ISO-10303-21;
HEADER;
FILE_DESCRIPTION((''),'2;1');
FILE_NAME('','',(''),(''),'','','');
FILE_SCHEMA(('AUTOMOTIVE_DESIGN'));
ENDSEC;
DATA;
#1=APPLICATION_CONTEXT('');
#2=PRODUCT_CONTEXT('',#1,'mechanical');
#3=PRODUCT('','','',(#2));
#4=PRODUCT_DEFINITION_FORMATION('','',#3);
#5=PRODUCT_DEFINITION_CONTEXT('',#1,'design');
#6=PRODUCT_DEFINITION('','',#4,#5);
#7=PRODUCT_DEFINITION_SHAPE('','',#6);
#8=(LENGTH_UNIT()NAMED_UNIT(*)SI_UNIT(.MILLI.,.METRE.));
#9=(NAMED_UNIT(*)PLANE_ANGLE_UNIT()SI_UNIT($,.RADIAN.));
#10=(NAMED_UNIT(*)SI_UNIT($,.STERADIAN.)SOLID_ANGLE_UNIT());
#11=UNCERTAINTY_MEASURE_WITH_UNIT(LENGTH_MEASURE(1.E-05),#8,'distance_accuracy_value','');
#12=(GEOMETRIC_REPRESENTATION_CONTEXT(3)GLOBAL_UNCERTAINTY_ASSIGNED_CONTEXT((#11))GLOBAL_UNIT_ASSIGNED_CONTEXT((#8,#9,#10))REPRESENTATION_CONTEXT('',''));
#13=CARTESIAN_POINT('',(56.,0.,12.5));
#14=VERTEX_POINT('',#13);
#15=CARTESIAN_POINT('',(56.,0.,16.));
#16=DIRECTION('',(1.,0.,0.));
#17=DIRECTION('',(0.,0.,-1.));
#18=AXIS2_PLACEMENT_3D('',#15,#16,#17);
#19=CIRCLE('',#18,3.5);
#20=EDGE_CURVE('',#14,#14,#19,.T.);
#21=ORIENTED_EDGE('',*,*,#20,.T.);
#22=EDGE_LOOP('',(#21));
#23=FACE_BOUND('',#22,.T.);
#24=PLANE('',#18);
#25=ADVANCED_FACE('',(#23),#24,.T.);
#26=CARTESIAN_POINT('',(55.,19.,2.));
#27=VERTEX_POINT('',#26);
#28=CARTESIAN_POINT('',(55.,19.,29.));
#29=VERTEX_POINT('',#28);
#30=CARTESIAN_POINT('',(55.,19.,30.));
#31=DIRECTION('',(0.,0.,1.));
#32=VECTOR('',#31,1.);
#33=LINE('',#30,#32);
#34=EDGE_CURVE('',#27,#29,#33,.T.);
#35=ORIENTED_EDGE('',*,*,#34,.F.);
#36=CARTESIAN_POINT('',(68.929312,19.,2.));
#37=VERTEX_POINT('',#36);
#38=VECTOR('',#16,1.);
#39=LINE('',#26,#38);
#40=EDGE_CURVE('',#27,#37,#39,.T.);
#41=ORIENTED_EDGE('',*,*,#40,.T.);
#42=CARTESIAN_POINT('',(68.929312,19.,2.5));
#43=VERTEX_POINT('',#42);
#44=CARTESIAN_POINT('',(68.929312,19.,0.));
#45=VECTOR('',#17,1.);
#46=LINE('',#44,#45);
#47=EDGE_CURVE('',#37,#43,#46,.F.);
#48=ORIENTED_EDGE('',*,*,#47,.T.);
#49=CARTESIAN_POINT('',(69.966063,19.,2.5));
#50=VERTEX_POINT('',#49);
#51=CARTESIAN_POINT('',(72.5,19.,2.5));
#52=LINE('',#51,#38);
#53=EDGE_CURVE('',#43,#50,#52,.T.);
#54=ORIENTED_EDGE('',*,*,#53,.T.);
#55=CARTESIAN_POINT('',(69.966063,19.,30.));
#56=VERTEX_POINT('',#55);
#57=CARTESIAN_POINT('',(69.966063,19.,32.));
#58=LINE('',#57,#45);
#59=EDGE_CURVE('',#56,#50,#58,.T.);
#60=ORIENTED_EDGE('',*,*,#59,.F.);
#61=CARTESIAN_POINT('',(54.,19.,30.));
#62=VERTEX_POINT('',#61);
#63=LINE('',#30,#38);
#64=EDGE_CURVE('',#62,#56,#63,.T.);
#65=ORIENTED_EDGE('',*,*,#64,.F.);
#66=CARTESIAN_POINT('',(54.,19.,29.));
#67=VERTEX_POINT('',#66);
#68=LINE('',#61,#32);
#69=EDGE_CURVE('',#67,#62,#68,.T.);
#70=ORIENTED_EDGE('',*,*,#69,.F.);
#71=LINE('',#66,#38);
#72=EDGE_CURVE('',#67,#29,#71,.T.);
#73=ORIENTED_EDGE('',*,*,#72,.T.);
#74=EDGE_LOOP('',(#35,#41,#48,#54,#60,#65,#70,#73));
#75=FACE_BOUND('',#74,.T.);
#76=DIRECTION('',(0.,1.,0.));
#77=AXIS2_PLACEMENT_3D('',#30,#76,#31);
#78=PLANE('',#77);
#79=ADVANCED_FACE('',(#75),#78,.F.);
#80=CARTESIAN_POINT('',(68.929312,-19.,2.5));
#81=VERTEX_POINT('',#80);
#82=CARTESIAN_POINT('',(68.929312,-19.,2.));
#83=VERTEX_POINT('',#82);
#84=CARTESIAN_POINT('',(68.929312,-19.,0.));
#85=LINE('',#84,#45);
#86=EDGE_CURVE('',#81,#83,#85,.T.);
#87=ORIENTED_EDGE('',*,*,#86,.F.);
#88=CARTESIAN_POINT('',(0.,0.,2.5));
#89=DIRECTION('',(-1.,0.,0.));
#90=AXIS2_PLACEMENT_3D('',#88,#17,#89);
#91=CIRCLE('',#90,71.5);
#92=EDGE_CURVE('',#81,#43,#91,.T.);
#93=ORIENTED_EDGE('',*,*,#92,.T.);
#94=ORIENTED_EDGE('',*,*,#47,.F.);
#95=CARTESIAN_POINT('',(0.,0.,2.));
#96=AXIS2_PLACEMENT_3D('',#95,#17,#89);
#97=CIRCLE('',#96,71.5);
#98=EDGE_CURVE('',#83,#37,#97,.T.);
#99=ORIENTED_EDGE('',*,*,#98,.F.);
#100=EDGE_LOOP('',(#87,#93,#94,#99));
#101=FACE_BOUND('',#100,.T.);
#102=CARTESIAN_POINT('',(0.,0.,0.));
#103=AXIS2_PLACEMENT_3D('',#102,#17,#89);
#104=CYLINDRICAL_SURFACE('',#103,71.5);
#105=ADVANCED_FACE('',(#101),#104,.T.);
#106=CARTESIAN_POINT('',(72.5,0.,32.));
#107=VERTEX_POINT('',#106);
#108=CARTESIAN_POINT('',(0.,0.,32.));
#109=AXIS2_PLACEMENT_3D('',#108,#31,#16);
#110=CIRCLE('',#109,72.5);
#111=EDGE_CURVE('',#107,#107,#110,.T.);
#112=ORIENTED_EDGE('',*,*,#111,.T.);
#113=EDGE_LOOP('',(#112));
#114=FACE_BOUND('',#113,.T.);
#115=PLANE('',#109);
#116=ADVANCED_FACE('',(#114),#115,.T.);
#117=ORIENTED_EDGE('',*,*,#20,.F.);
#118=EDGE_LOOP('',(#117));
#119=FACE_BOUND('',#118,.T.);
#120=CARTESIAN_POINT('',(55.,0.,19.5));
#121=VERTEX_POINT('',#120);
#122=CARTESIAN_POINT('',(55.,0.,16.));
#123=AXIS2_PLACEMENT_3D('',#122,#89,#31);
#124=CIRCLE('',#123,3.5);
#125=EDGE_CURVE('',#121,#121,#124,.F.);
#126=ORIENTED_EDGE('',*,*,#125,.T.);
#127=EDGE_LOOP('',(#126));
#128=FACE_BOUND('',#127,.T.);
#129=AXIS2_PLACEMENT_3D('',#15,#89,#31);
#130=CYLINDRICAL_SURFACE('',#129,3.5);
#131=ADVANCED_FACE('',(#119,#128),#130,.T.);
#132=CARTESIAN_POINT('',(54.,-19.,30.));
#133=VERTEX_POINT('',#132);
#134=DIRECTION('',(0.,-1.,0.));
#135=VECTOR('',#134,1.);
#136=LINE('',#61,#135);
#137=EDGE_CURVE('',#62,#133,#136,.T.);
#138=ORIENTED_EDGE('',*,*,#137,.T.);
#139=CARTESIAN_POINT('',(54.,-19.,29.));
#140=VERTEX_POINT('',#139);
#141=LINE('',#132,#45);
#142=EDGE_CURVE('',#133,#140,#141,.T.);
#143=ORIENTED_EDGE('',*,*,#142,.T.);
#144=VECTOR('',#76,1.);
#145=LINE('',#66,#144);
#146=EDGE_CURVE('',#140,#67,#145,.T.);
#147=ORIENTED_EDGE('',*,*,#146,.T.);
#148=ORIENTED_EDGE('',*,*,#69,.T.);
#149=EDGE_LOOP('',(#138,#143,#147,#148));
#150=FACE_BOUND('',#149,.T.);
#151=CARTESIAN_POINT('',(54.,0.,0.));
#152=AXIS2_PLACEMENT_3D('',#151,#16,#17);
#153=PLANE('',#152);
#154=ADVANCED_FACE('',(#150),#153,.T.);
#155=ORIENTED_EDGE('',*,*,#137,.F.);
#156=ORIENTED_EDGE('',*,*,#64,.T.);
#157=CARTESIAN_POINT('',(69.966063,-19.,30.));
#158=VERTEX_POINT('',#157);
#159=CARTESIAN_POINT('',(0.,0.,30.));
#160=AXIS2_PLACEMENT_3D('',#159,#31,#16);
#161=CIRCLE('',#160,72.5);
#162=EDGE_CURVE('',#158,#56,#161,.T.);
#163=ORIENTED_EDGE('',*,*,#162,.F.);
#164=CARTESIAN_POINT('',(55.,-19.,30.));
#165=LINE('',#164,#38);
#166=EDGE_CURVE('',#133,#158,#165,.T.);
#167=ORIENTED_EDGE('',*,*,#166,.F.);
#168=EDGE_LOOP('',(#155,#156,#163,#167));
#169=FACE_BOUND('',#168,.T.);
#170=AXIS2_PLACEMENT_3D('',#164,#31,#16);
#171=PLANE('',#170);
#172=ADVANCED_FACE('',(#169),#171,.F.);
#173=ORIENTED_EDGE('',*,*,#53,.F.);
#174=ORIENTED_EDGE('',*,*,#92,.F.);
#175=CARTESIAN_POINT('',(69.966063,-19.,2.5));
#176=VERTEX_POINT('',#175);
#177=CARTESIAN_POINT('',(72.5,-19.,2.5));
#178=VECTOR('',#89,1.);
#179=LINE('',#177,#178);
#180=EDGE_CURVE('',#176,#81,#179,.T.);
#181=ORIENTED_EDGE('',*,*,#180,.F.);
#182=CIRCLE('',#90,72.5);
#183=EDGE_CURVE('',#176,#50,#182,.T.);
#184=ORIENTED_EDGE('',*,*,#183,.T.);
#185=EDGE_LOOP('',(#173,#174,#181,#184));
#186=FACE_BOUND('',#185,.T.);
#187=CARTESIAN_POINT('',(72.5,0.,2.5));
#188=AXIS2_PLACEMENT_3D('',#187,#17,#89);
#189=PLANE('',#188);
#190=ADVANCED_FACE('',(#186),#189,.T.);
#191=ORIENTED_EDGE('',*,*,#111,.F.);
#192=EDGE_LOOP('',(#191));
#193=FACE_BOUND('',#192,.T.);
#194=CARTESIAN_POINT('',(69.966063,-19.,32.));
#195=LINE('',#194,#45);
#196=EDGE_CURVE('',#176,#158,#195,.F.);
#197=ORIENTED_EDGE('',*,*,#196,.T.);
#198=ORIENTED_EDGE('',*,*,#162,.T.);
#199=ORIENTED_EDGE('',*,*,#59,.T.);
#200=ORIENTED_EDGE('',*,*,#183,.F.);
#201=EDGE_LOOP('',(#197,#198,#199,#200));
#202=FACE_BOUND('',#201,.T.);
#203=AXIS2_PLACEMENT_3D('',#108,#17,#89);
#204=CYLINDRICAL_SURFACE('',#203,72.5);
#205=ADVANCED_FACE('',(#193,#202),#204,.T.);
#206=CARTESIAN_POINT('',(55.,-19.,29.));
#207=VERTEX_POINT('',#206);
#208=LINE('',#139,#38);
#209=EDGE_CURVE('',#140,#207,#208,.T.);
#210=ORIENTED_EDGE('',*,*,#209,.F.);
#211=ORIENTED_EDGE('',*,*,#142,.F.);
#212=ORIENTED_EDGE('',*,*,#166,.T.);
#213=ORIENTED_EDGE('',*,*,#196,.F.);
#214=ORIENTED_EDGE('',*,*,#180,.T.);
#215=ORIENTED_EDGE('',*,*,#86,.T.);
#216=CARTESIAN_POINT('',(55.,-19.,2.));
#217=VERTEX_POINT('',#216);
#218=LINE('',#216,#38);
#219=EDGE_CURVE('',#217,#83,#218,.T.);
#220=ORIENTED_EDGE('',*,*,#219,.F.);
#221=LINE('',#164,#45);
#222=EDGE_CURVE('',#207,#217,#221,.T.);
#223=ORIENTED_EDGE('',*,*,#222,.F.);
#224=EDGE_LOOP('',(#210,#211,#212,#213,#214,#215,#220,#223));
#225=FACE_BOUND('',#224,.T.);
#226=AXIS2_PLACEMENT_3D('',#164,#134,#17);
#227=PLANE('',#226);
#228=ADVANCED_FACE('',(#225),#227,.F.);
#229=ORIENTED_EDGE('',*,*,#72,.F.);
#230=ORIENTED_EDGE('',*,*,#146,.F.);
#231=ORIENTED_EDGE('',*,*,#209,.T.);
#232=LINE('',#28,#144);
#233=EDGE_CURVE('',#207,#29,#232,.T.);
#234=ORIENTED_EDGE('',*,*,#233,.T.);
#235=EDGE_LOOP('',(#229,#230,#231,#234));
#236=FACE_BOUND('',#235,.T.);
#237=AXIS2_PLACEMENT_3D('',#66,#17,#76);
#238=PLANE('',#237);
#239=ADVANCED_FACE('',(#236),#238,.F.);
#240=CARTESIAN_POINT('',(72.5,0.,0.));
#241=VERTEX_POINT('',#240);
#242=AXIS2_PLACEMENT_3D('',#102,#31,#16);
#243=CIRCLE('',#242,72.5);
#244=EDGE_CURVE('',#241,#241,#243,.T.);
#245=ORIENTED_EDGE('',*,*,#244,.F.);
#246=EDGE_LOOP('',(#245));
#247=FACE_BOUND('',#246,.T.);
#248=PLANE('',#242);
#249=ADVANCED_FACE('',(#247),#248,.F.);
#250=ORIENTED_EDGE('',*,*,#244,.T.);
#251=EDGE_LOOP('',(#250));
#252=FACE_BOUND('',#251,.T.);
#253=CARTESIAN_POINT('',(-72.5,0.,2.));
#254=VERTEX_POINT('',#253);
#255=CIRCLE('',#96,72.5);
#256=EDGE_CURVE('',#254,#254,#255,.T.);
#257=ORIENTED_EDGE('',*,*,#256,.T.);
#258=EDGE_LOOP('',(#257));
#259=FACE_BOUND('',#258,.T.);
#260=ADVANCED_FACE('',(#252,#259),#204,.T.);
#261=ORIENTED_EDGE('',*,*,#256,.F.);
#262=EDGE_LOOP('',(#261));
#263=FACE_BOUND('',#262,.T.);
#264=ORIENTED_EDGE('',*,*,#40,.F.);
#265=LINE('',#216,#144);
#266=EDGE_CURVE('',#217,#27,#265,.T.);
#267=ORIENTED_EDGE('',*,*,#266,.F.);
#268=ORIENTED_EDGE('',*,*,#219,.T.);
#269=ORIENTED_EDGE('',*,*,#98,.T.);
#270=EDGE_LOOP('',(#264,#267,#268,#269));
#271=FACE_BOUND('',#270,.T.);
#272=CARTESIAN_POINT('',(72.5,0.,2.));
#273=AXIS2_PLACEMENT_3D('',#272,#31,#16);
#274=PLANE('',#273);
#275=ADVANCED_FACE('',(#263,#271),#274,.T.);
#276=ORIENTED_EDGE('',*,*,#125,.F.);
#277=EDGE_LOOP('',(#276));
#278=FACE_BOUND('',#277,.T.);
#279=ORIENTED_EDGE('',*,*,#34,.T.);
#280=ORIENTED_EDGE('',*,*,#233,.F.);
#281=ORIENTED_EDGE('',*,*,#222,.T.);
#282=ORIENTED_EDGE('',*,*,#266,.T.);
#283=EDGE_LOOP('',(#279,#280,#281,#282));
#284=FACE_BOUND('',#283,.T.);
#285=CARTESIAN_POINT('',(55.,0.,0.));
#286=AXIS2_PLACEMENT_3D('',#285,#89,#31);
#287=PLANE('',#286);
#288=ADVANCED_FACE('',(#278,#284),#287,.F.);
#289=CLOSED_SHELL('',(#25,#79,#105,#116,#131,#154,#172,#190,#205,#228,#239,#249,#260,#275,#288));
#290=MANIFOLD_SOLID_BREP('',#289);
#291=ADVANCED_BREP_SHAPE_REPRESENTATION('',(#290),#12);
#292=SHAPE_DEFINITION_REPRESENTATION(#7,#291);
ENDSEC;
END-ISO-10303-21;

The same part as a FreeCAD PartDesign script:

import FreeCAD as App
import Part
import Sketcher
from FreeCAD import Vector

doc = App.newDocument("Part")
params = doc.addObject("Spreadsheet::Sheet", "Params")
for row, (alias, value) in enumerate([
    ("sketch1_diameter", "145 mm"),
    ("pad1_length", "32 mm"),
    ("sketch2_width", "1 mm"),
    ("sketch2_height", "0.5 mm"),
    ("groove_angle", "360 deg"),
    ("sketch3_width", "38 mm"),
    ("sketch3_height", "28 mm"),
    ("pocket1_length", "17.5 mm"),
    ("sketch4_width", "38 mm"),
    ("sketch4_height", "1 mm"),
    ("pocket2_length", "1 mm"),
    ("sketch5_diameter", "7 mm"),
    ("pad2_length", "1 mm"),
], start=1):
    params.set(f"A{row}", alias)
    params.set(f"B{row}", "=" + value)
    params.setAlias(f"B{row}", alias)

body = doc.addObject("PartDesign::Body", "Body")

# Sketch on XY plane
sketch1 = body.newObject("Sketcher::SketchObject", "Sketch")
sketch1.AttachmentSupport = (doc.getObject("XY_Plane"), [""])
sketch1.MapMode = "FlatFace"
sketch1.addGeometry(Part.Circle(Vector(0, 0, 0), Vector(0, 0, 1), 72.5), False)
sketch1.addConstraint([
    Sketcher.Constraint("Coincident", 0, 3, -1, 1),
    Sketcher.Constraint("Diameter", 0, 145.0),
])
sketch1.setExpression("Constraints[1]", "Params.sketch1_diameter")
pad1 = body.newObject("PartDesign::Pad", "Pad")
pad1.Profile = sketch1
pad1.setExpression("Length", "Params.pad1_length")

# Sketch on XZ plane
sketch2 = body.newObject("Sketcher::SketchObject", "Sketch001")
sketch2.AttachmentSupport = (doc.getObject("XZ_Plane"), [""])
sketch2.MapMode = "FlatFace"
sketch2.addGeometry([
    Part.LineSegment(Vector(71.5, 2, 0), Vector(71.5, 2.5, 0)),
    Part.LineSegment(Vector(71.5, 2.5, 0), Vector(72.5, 2.5, 0)),
    Part.LineSegment(Vector(72.5, 2.5, 0), Vector(72.5, 2, 0)),
    Part.LineSegment(Vector(72.5, 2, 0), Vector(71.5, 2, 0)),
], False)
sketch2.addConstraint([
    Sketcher.Constraint("Coincident", 0, 2, 1, 1),
    Sketcher.Constraint("Coincident", 1, 2, 2, 1),
    Sketcher.Constraint("Coincident", 2, 2, 3, 1),
    Sketcher.Constraint("Coincident", 3, 2, 0, 1),
    Sketcher.Constraint("Vertical", 0),
    Sketcher.Constraint("Horizontal", 1),
    Sketcher.Constraint("Vertical", 2),
    Sketcher.Constraint("Horizontal", 3),
    Sketcher.Constraint("DistanceX", 1, 1, 1, 2, 1.0),
    Sketcher.Constraint("DistanceY", 0, 1, 0, 2, 0.5),
    Sketcher.Constraint("DistanceY", -1, 1, 2, 2, 2.0),
    Sketcher.Constraint("DistanceX", -1, 1, 0, 2, 71.5),
])
sketch2.setExpression("Constraints[8]", "Params.sketch2_width")
sketch2.setExpression("Constraints[9]", "Params.sketch2_height")
groove = body.newObject("PartDesign::Groove", "Groove")
groove.Profile = sketch2
groove.ReferenceAxis = (sketch2, ["V_Axis"])
groove.setExpression("Angle", "Params.groove_angle")

# Sketch on YZ plane
sketch3 = body.newObject("Sketcher::SketchObject", "Sketch002")
sketch3.AttachmentSupport = (doc.getObject("YZ_Plane"), [""])
sketch3.MapMode = "FlatFace"
sketch3.AttachmentOffset = App.Placement(Vector(0, 0, 72.5), App.Rotation())
sketch3.addGeometry([
    Part.LineSegment(Vector(19, 30, 0), Vector(-19, 30, 0)),
    Part.LineSegment(Vector(-19, 30, 0), Vector(-19, 2, 0)),
    Part.LineSegment(Vector(-19, 2, 0), Vector(19, 2, 0)),
    Part.LineSegment(Vector(19, 2, 0), Vector(19, 30, 0)),
], False)
sketch3.addConstraint([
    Sketcher.Constraint("Coincident", 0, 2, 1, 1),
    Sketcher.Constraint("Coincident", 1, 2, 2, 1),
    Sketcher.Constraint("Coincident", 2, 2, 3, 1),
    Sketcher.Constraint("Coincident", 3, 2, 0, 1),
    Sketcher.Constraint("Horizontal", 0),
    Sketcher.Constraint("Vertical", 1),
    Sketcher.Constraint("Horizontal", 2),
    Sketcher.Constraint("Vertical", 3),
    Sketcher.Constraint("DistanceX", 0, 2, 0, 1, 38.0),
    Sketcher.Constraint("DistanceY", 1, 2, 1, 1, 28.0),
    Sketcher.Constraint("DistanceX", 0, 2, -1, 1, 19.0),
    Sketcher.Constraint("DistanceY", -1, 1, 0, 2, 30.0),
])
sketch3.setExpression("Constraints[8]", "Params.sketch3_width")
sketch3.setExpression("Constraints[9]", "Params.sketch3_height")
pocket1 = body.newObject("PartDesign::Pocket", "Pocket")
pocket1.Profile = sketch3
pocket1.setExpression("Length", "Params.pocket1_length")

# Sketch on YZ plane
sketch4 = body.newObject("Sketcher::SketchObject", "Sketch003")
sketch4.AttachmentSupport = (doc.getObject("YZ_Plane"), [""])
sketch4.MapMode = "FlatFace"
sketch4.AttachmentOffset = App.Placement(Vector(0, 0, 55), App.Rotation())
sketch4.addGeometry([
    Part.LineSegment(Vector(19, 30, 0), Vector(-19, 30, 0)),
    Part.LineSegment(Vector(-19, 30, 0), Vector(-19, 29, 0)),
    Part.LineSegment(Vector(-19, 29, 0), Vector(19, 29, 0)),
    Part.LineSegment(Vector(19, 29, 0), Vector(19, 30, 0)),
], False)
sketch4.addConstraint([
    Sketcher.Constraint("Coincident", 0, 2, 1, 1),
    Sketcher.Constraint("Coincident", 1, 2, 2, 1),
    Sketcher.Constraint("Coincident", 2, 2, 3, 1),
    Sketcher.Constraint("Coincident", 3, 2, 0, 1),
    Sketcher.Constraint("Horizontal", 0),
    Sketcher.Constraint("Vertical", 1),
    Sketcher.Constraint("Horizontal", 2),
    Sketcher.Constraint("Vertical", 3),
    Sketcher.Constraint("DistanceX", 0, 2, 0, 1, 38.0),
    Sketcher.Constraint("DistanceY", 1, 2, 1, 1, 1.0),
    Sketcher.Constraint("DistanceX", 0, 2, -1, 1, 19.0),
    Sketcher.Constraint("DistanceY", -1, 1, 0, 2, 30.0),
])
sketch4.setExpression("Constraints[8]", "Params.sketch4_width")
sketch4.setExpression("Constraints[9]", "Params.sketch4_height")
pocket2 = body.newObject("PartDesign::Pocket", "Pocket001")
pocket2.Profile = sketch4
pocket2.setExpression("Length", "Params.pocket2_length")

# Sketch on YZ plane
sketch5 = body.newObject("Sketcher::SketchObject", "Sketch004")
sketch5.AttachmentSupport = (doc.getObject("YZ_Plane"), [""])
sketch5.MapMode = "FlatFace"
sketch5.AttachmentOffset = App.Placement(Vector(0, 0, 55), App.Rotation())
sketch5.addGeometry(Part.Circle(Vector(0, 16, 0), Vector(0, 0, 1), 3.5), False)
sketch5.addConstraint([
    Sketcher.Constraint("PointOnObject", 0, 3, -2),
    Sketcher.Constraint("Diameter", 0, 7.0),
    Sketcher.Constraint("DistanceY", -1, 1, 0, 3, 16.0),
])
sketch5.setExpression("Constraints[1]", "Params.sketch5_diameter")
pad2 = body.newObject("PartDesign::Pad", "Pad001")
pad2.Profile = sketch5
pad2.setExpression("Length", "Params.pad2_length")

doc.recompute()
